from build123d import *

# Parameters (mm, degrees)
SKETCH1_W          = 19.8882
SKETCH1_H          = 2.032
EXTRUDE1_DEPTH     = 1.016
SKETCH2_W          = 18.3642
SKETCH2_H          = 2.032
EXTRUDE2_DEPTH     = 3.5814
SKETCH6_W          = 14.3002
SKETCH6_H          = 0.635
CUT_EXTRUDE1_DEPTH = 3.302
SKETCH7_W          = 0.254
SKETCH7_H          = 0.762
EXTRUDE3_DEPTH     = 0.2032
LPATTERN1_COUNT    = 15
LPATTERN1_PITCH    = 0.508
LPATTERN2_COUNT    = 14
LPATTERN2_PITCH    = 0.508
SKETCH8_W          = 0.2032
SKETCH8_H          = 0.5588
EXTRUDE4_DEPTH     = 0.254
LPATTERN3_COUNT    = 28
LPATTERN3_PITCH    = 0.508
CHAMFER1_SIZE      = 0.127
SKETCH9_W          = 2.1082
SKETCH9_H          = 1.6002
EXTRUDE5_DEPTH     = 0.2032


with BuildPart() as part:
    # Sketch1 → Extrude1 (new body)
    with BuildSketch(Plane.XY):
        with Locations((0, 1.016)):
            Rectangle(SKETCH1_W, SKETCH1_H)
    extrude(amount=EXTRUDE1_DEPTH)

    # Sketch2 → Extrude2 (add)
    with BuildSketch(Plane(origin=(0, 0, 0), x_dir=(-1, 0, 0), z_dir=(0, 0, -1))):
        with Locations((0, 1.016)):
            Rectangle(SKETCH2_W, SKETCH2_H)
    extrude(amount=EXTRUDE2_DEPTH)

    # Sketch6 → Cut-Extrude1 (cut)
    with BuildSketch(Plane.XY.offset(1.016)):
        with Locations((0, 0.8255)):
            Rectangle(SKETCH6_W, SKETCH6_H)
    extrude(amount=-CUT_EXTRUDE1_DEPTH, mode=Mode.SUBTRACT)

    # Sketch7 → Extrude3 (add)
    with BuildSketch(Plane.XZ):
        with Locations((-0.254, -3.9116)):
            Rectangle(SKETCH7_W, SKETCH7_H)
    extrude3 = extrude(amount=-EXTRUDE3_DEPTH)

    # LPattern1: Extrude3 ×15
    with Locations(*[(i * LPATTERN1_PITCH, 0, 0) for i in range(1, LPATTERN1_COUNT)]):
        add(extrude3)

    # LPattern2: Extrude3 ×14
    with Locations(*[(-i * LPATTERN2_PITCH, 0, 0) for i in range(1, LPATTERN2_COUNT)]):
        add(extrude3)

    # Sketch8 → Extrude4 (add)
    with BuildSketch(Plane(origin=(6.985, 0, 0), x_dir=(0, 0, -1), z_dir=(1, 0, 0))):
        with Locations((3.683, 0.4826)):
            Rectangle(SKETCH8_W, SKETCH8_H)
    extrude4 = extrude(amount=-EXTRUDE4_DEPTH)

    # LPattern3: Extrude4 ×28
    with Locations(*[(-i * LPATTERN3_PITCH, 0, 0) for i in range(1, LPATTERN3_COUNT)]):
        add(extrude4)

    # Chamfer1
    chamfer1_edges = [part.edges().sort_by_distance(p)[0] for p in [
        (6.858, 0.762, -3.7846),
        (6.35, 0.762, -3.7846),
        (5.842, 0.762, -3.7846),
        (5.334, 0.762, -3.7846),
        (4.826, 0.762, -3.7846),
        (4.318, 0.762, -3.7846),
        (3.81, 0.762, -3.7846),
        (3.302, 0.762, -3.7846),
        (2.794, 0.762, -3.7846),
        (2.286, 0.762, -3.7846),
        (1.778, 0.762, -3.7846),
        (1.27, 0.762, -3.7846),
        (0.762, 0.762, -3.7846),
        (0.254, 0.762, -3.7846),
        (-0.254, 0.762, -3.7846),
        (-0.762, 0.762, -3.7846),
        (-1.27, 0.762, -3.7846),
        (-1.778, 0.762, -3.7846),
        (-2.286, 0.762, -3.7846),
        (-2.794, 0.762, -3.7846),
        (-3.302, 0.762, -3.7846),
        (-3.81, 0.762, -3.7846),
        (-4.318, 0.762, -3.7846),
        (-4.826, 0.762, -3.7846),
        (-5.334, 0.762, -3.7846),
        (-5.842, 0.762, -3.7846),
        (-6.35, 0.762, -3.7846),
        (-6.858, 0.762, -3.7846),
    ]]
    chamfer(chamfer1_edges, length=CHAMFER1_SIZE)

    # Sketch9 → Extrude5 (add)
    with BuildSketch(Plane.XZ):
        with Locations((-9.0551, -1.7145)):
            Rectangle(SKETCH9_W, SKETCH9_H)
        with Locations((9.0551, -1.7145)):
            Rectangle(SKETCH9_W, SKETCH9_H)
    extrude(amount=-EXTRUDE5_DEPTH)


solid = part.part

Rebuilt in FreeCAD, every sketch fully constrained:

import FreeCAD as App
import Part
import Sketcher
Q = App.Units.Quantity


def edges_at(feature, points):
    """Names of the edges that pass closest to the given points."""
    edges = feature.Shape.Edges
    near = lambda p: min(range(len(edges)), key=lambda i: edges[i].distToShape(Part.Vertex(*p))[0])
    return sorted({f"Edge{near(p) + 1}" for p in points})

doc = App.newDocument("Part")
body = doc.addObject("PartDesign::Body", "Body")

sketch1 = doc.addObject("Sketcher::SketchObject", "Sketch")
body.addObject(sketch1)
sketch1.AttachmentSupport = (doc.XY_Plane, [""])
sketch1.MapMode = "FlatFace"
sketch1.addGeometry([
    Part.LineSegment(App.Vector(-9.9, 2, 0), App.Vector(-9.9, 0, 0)),
    Part.LineSegment(App.Vector(-9.9, 0, 0), App.Vector(9.9, 0, 0)),
    Part.LineSegment(App.Vector(9.9, 0, 0), App.Vector(9.9, 2, 0)),
    Part.LineSegment(App.Vector(9.9, 2, 0), App.Vector(-9.9, 2, 0)),
], False)
sketch1.addConstraint([
    Sketcher.Constraint("Coincident", 0, 2, 1, 1),
    Sketcher.Constraint("Coincident", 1, 2, 2, 1),
    Sketcher.Constraint("Coincident", 2, 2, 3, 1),
    Sketcher.Constraint("Coincident", 3, 2, 0, 1),
    Sketcher.Constraint("Vertical", 0),
    Sketcher.Constraint("Horizontal", 1),
    Sketcher.Constraint("Vertical", 2),
    Sketcher.Constraint("Horizontal", 3),
    Sketcher.Constraint("Symmetric", 0, 2, 1, 2, -1, 1),
    Sketcher.Constraint("DistanceY", 0, 2, 0, 1, Q("0.08 in")),
    Sketcher.Constraint("DistanceX", 1, 1, 1, 2, Q("0.783 in")),
])
pad1 = doc.addObject("PartDesign::Pad", "Pad")
body.addObject(pad1)
pad1.Profile = sketch1
pad1.Length = Q("0.04 in")

sketch2 = doc.addObject("Sketcher::SketchObject", "Sketch001")
body.addObject(sketch2)
sketch2.AttachmentSupport = (doc.XY_Plane, [""])
sketch2.MapMode = "FlatFace"
sketch2.addGeometry([
    Part.LineSegment(App.Vector(9.2, 2, 0), App.Vector(9.2, 0, 0)),
    Part.LineSegment(App.Vector(9.2, 0, 0), App.Vector(-9.2, 0, 0)),
    Part.LineSegment(App.Vector(-9.2, 0, 0), App.Vector(-9.2, 2, 0)),
    Part.LineSegment(App.Vector(-9.2, 2, 0), App.Vector(9.2, 2, 0)),
], False)
sketch2.addConstraint([
    Sketcher.Constraint("Coincident", 0, 2, 1, 1),
    Sketcher.Constraint("Coincident", 1, 2, 2, 1),
    Sketcher.Constraint("Coincident", 2, 2, 3, 1),
    Sketcher.Constraint("Coincident", 3, 2, 0, 1),
    Sketcher.Constraint("Vertical", 0),
    Sketcher.Constraint("Horizontal", 1),
    Sketcher.Constraint("Vertical", 2),
    Sketcher.Constraint("Horizontal", 3),
    Sketcher.Constraint("Symmetric", 0, 2, 1, 2, -1, 1),
    Sketcher.Constraint("DistanceY", 0, 2, 0, 1, Q("0.08 in")),
    Sketcher.Constraint("DistanceX", 1, 2, 1, 1, Q("0.723 in")),
])
pad2 = doc.addObject("PartDesign::Pad", "Pad001")
body.addObject(pad2)
pad2.Profile = sketch2
pad2.Length = Q("0.141 in")
pad2.Reversed = True

sketch3 = doc.addObject("Sketcher::SketchObject", "Sketch002")
body.addObject(sketch3)
sketch3.AttachmentSupport = (doc.XY_Plane, [""])
sketch3.MapMode = "FlatFace"
sketch3.AttachmentOffset = App.Placement(App.Vector(0, 0, 0.04 * 25.4), App.Rotation())
sketch3.addGeometry([
    Part.LineSegment(App.Vector(-7.2, 1.1, 0), App.Vector(-7.2, 0.5, 0)),
    Part.LineSegment(App.Vector(-7.2, 0.5, 0), App.Vector(7.2, 0.5, 0)),
    Part.LineSegment(App.Vector(7.2, 0.5, 0), App.Vector(7.2, 1.1, 0)),
    Part.LineSegment(App.Vector(7.2, 1.1, 0), App.Vector(-7.2, 1.1, 0)),
], False)
sketch3.addConstraint([
    Sketcher.Constraint("Coincident", 0, 2, 1, 1),
    Sketcher.Constraint("Coincident", 1, 2, 2, 1),
    Sketcher.Constraint("Coincident", 2, 2, 3, 1),
    Sketcher.Constraint("Coincident", 3, 2, 0, 1),
    Sketcher.Constraint("Vertical", 0),
    Sketcher.Constraint("Horizontal", 1),
    Sketcher.Constraint("Vertical", 2),
    Sketcher.Constraint("Horizontal", 3),
    Sketcher.Constraint("DistanceX", 1, 1, 1, 2, Q("0.563 in")),
    Sketcher.Constraint("DistanceY", 0, 2, 0, 1, Q("0.025 in")),
    Sketcher.Constraint("DistanceY", -1, 1, 0, 2, Q("0.02 in")),
    Sketcher.Constraint("DistanceX", 0, 2, -1, 1, Q("0.2815 in")),
])
pocket1 = doc.addObject("PartDesign::Pocket", "Pocket")
body.addObject(pocket1)
pocket1.Profile = sketch3
pocket1.Length = Q("0.13 in")

sketch4 = doc.addObject("Sketcher::SketchObject", "Sketch003")
body.addObject(sketch4)
sketch4.AttachmentSupport = (doc.XZ_Plane, [""])
sketch4.MapMode = "FlatFace"
sketch4.addGeometry([
    Part.LineSegment(App.Vector(-0.38, -3.53, 0), App.Vector(-0.38, -4.29, 0)),
    Part.LineSegment(App.Vector(-0.38, -4.29, 0), App.Vector(-0.13, -4.29, 0)),
    Part.LineSegment(App.Vector(-0.13, -4.29, 0), App.Vector(-0.13, -3.53, 0)),
    Part.LineSegment(App.Vector(-0.13, -3.53, 0), App.Vector(-0.38, -3.53, 0)),
], False)
sketch4.addConstraint([
    Sketcher.Constraint("Coincident", 0, 2, 1, 1),
    Sketcher.Constraint("Coincident", 1, 2, 2, 1),
    Sketcher.Constraint("Coincident", 2, 2, 3, 1),
    Sketcher.Constraint("Coincident", 3, 2, 0, 1),
    Sketcher.Constraint("Vertical", 0),
    Sketcher.Constraint("Horizontal", 1),
    Sketcher.Constraint("Vertical", 2),
    Sketcher.Constraint("Horizontal", 3),
    Sketcher.Constraint("DistanceX", 1, 1, 1, 2, Q("0.01 in")),
    Sketcher.Constraint("DistanceY", 0, 2, 0, 1, Q("0.03 in")),
    Sketcher.Constraint("DistanceX", 0, 2, -1, 1, Q("0.015 in")),
    Sketcher.Constraint("DistanceY", 0, 2, -1, 1, Q("0.169 in")),
])
pad3 = doc.addObject("PartDesign::Pad", "Pad002")
body.addObject(pad3)
pad3.Profile = sketch4
pad3.Length = Q("0.008 in")
pad3.Reversed = True
doc.recompute()

linearpattern = doc.addObject("PartDesign::LinearPattern", "LinearPattern")
body.addObject(linearpattern)
linearpattern.Originals = [pad3]
linearpattern.Direction = (doc.X_Axis, [""])
linearpattern.Mode = "offset"
linearpattern.Offset = Q("0.02 in")
linearpattern.Occurrences = 15
body.Tip = linearpattern
doc.recompute()

linearpattern2 = doc.addObject("PartDesign::LinearPattern", "LinearPattern001")
body.addObject(linearpattern2)
linearpattern2.Originals = [pad3]
linearpattern2.Direction = (doc.X_Axis, [""])
linearpattern2.Mode = "offset"
linearpattern2.Offset = Q("0.02 in")
linearpattern2.Occurrences = 14
linearpattern2.Reversed = True
body.Tip = linearpattern2

sketch5 = doc.addObject("Sketcher::SketchObject", "Sketch004")
body.addObject(sketch5)
sketch5.AttachmentSupport = (doc.YZ_Plane, [""])
sketch5.MapMode = "FlatFace"
sketch5.AttachmentOffset = App.Placement(App.Vector(0, 0, 0.275 * 25.4), App.Rotation())
sketch5.addGeometry([
    Part.LineSegment(App.Vector(0.76, -3.58, 0), App.Vector(0.2, -3.58, 0)),
    Part.LineSegment(App.Vector(0.2, -3.58, 0), App.Vector(0.2, -3.78, 0)),
    Part.LineSegment(App.Vector(0.2, -3.78, 0), App.Vector(0.76, -3.78, 0)),
    Part.LineSegment(App.Vector(0.76, -3.78, 0), App.Vector(0.76, -3.58, 0)),
], False)
sketch5.addConstraint([
    Sketcher.Constraint("Coincident", 0, 2, 1, 1),
    Sketcher.Constraint("Coincident", 1, 2, 2, 1),
    Sketcher.Constraint("Coincident", 2, 2, 3, 1),
    Sketcher.Constraint("Coincident", 3, 2, 0, 1),
    Sketcher.Constraint("Horizontal", 0),
    Sketcher.Constraint("Vertical", 1),
    Sketcher.Constraint("Horizontal", 2),
    Sketcher.Constraint("Vertical", 3),
    Sketcher.Constraint("DistanceX", 0, 2, 0, 1, Q("0.022 in")),
    Sketcher.Constraint("DistanceY", 1, 2, 1, 1, Q("0.008 in")),
    Sketcher.Constraint("DistanceX", -1, 1, 2, 2, Q("0.03 in")),
    Sketcher.Constraint("DistanceY", 0, 2, -1, 1, Q("0.141 in")),
])
pad4 = doc.addObject("PartDesign::Pad", "Pad003")
body.addObject(pad4)
pad4.Profile = sketch5
pad4.Length = Q("0.01 in")
pad4.Reversed = True
doc.recompute()

linearpattern3 = doc.addObject("PartDesign::LinearPattern", "LinearPattern002")
body.addObject(linearpattern3)
linearpattern3.Originals = [pad4]
linearpattern3.Direction = (doc.X_Axis, [""])
linearpattern3.Mode = "offset"
linearpattern3.Offset = Q("0.02 in")
linearpattern3.Occurrences = 28
linearpattern3.Reversed = True
body.Tip = linearpattern3
doc.recompute()

chamfer = doc.addObject("PartDesign::Chamfer", "Chamfer")
body.addObject(chamfer)
chamfer.Base = (linearpattern3, edges_at(linearpattern3, [
    (6.858, 0.762, -3.785),
    (6.35, 0.762, -3.785),
    (5.842, 0.762, -3.785),
    (5.334, 0.762, -3.785),
    (4.826, 0.762, -3.785),
    (4.318, 0.762, -3.785),
    (3.81, 0.762, -3.785),
    (3.302, 0.762, -3.785),
    (2.794, 0.762, -3.785),
    (2.286, 0.762, -3.785),
    (1.778, 0.762, -3.785),
    (1.27, 0.762, -3.785),
    (0.762, 0.762, -3.785),
    (0.254, 0.762, -3.785),
    (-0.254, 0.762, -3.785),
    (-0.762, 0.762, -3.785),
    (-1.27, 0.762, -3.785),
    (-1.778, 0.762, -3.785),
    (-2.286, 0.762, -3.785),
    (-2.794, 0.762, -3.785),
    (-3.302, 0.762, -3.785),
    (-3.81, 0.762, -3.785),
    (-4.318, 0.762, -3.785),
    (-4.826, 0.762, -3.785),
    (-5.334, 0.762, -3.785),
    (-5.842, 0.762, -3.785),
    (-6.35, 0.762, -3.785),
    (-6.858, 0.762, -3.785),
]))
chamfer.Size = Q("0.005 in")

sketch6 = doc.addObject("Sketcher::SketchObject", "Sketch005")
body.addObject(sketch6)
sketch6.AttachmentSupport = (doc.XZ_Plane, [""])
sketch6.MapMode = "FlatFace"
sketch6.addGeometry([
    Part.LineSegment(App.Vector(-10.1, -0.9, 0), App.Vector(-10.1, -2.5, 0)),
    Part.LineSegment(App.Vector(-10.1, -2.5, 0), App.Vector(-8, -2.5, 0)),
    Part.LineSegment(App.Vector(-8, -2.5, 0), App.Vector(-8, -0.9, 0)),
    Part.LineSegment(App.Vector(-8, -0.9, 0), App.Vector(-10.1, -0.9, 0)),
    Part.LineSegment(App.Vector(8, -0.9, 0), App.Vector(8, -2.5, 0)),
    Part.LineSegment(App.Vector(8, -2.5, 0), App.Vector(10.1, -2.5, 0)),
    Part.LineSegment(App.Vector(10.1, -2.5, 0), App.Vector(10.1, -0.9, 0)),
    Part.LineSegment(App.Vector(10.1, -0.9, 0), App.Vector(8, -0.9, 0)),
], False)
sketch6.addConstraint([
    Sketcher.Constraint("Coincident", 0, 2, 1, 1),
    Sketcher.Constraint("Coincident", 1, 2, 2, 1),
    Sketcher.Constraint("Coincident", 2, 2, 3, 1),
    Sketcher.Constraint("Coincident", 3, 2, 0, 1),
    Sketcher.Constraint("Coincident", 4, 2, 5, 1),
    Sketcher.Constraint("Coincident", 5, 2, 6, 1),
    Sketcher.Constraint("Coincident", 6, 2, 7, 1),
    Sketcher.Constraint("Coincident", 7, 2, 4, 1),
    Sketcher.Constraint("Vertical", 0),
    Sketcher.Constraint("Horizontal", 1),
    Sketcher.Constraint("Vertical", 2),
    Sketcher.Constraint("Horizontal", 3),
    Sketcher.Constraint("Vertical", 4),
    Sketcher.Constraint("Horizontal", 5),
    Sketcher.Constraint("Vertical", 6),
    Sketcher.Constraint("Horizontal", 7),
    Sketcher.Constraint("Symmetric", 1, 2, 4, 2, -2),
    Sketcher.Constraint("Symmetric", 3, 2, 6, 2, -2),
    Sketcher.Constraint("DistanceX", 1, 1, 1, 2, Q("0.083 in")),
    Sketcher.Constraint("DistanceY", 0, 2, 0, 1, Q("0.063 in")),
    Sketcher.Constraint("DistanceX", 1, 2, 4, 2, Q("0.63 in")),
    Sketcher.Constraint("DistanceY", 0, 2, -1, 1, Q("0.099 in")),
])
pad5 = doc.addObject("PartDesign::Pad", "Pad004")
body.addObject(pad5)
pad5.Profile = sketch6
pad5.Length = Q("0.008 in")
pad5.Reversed = True

doc.recompute()
